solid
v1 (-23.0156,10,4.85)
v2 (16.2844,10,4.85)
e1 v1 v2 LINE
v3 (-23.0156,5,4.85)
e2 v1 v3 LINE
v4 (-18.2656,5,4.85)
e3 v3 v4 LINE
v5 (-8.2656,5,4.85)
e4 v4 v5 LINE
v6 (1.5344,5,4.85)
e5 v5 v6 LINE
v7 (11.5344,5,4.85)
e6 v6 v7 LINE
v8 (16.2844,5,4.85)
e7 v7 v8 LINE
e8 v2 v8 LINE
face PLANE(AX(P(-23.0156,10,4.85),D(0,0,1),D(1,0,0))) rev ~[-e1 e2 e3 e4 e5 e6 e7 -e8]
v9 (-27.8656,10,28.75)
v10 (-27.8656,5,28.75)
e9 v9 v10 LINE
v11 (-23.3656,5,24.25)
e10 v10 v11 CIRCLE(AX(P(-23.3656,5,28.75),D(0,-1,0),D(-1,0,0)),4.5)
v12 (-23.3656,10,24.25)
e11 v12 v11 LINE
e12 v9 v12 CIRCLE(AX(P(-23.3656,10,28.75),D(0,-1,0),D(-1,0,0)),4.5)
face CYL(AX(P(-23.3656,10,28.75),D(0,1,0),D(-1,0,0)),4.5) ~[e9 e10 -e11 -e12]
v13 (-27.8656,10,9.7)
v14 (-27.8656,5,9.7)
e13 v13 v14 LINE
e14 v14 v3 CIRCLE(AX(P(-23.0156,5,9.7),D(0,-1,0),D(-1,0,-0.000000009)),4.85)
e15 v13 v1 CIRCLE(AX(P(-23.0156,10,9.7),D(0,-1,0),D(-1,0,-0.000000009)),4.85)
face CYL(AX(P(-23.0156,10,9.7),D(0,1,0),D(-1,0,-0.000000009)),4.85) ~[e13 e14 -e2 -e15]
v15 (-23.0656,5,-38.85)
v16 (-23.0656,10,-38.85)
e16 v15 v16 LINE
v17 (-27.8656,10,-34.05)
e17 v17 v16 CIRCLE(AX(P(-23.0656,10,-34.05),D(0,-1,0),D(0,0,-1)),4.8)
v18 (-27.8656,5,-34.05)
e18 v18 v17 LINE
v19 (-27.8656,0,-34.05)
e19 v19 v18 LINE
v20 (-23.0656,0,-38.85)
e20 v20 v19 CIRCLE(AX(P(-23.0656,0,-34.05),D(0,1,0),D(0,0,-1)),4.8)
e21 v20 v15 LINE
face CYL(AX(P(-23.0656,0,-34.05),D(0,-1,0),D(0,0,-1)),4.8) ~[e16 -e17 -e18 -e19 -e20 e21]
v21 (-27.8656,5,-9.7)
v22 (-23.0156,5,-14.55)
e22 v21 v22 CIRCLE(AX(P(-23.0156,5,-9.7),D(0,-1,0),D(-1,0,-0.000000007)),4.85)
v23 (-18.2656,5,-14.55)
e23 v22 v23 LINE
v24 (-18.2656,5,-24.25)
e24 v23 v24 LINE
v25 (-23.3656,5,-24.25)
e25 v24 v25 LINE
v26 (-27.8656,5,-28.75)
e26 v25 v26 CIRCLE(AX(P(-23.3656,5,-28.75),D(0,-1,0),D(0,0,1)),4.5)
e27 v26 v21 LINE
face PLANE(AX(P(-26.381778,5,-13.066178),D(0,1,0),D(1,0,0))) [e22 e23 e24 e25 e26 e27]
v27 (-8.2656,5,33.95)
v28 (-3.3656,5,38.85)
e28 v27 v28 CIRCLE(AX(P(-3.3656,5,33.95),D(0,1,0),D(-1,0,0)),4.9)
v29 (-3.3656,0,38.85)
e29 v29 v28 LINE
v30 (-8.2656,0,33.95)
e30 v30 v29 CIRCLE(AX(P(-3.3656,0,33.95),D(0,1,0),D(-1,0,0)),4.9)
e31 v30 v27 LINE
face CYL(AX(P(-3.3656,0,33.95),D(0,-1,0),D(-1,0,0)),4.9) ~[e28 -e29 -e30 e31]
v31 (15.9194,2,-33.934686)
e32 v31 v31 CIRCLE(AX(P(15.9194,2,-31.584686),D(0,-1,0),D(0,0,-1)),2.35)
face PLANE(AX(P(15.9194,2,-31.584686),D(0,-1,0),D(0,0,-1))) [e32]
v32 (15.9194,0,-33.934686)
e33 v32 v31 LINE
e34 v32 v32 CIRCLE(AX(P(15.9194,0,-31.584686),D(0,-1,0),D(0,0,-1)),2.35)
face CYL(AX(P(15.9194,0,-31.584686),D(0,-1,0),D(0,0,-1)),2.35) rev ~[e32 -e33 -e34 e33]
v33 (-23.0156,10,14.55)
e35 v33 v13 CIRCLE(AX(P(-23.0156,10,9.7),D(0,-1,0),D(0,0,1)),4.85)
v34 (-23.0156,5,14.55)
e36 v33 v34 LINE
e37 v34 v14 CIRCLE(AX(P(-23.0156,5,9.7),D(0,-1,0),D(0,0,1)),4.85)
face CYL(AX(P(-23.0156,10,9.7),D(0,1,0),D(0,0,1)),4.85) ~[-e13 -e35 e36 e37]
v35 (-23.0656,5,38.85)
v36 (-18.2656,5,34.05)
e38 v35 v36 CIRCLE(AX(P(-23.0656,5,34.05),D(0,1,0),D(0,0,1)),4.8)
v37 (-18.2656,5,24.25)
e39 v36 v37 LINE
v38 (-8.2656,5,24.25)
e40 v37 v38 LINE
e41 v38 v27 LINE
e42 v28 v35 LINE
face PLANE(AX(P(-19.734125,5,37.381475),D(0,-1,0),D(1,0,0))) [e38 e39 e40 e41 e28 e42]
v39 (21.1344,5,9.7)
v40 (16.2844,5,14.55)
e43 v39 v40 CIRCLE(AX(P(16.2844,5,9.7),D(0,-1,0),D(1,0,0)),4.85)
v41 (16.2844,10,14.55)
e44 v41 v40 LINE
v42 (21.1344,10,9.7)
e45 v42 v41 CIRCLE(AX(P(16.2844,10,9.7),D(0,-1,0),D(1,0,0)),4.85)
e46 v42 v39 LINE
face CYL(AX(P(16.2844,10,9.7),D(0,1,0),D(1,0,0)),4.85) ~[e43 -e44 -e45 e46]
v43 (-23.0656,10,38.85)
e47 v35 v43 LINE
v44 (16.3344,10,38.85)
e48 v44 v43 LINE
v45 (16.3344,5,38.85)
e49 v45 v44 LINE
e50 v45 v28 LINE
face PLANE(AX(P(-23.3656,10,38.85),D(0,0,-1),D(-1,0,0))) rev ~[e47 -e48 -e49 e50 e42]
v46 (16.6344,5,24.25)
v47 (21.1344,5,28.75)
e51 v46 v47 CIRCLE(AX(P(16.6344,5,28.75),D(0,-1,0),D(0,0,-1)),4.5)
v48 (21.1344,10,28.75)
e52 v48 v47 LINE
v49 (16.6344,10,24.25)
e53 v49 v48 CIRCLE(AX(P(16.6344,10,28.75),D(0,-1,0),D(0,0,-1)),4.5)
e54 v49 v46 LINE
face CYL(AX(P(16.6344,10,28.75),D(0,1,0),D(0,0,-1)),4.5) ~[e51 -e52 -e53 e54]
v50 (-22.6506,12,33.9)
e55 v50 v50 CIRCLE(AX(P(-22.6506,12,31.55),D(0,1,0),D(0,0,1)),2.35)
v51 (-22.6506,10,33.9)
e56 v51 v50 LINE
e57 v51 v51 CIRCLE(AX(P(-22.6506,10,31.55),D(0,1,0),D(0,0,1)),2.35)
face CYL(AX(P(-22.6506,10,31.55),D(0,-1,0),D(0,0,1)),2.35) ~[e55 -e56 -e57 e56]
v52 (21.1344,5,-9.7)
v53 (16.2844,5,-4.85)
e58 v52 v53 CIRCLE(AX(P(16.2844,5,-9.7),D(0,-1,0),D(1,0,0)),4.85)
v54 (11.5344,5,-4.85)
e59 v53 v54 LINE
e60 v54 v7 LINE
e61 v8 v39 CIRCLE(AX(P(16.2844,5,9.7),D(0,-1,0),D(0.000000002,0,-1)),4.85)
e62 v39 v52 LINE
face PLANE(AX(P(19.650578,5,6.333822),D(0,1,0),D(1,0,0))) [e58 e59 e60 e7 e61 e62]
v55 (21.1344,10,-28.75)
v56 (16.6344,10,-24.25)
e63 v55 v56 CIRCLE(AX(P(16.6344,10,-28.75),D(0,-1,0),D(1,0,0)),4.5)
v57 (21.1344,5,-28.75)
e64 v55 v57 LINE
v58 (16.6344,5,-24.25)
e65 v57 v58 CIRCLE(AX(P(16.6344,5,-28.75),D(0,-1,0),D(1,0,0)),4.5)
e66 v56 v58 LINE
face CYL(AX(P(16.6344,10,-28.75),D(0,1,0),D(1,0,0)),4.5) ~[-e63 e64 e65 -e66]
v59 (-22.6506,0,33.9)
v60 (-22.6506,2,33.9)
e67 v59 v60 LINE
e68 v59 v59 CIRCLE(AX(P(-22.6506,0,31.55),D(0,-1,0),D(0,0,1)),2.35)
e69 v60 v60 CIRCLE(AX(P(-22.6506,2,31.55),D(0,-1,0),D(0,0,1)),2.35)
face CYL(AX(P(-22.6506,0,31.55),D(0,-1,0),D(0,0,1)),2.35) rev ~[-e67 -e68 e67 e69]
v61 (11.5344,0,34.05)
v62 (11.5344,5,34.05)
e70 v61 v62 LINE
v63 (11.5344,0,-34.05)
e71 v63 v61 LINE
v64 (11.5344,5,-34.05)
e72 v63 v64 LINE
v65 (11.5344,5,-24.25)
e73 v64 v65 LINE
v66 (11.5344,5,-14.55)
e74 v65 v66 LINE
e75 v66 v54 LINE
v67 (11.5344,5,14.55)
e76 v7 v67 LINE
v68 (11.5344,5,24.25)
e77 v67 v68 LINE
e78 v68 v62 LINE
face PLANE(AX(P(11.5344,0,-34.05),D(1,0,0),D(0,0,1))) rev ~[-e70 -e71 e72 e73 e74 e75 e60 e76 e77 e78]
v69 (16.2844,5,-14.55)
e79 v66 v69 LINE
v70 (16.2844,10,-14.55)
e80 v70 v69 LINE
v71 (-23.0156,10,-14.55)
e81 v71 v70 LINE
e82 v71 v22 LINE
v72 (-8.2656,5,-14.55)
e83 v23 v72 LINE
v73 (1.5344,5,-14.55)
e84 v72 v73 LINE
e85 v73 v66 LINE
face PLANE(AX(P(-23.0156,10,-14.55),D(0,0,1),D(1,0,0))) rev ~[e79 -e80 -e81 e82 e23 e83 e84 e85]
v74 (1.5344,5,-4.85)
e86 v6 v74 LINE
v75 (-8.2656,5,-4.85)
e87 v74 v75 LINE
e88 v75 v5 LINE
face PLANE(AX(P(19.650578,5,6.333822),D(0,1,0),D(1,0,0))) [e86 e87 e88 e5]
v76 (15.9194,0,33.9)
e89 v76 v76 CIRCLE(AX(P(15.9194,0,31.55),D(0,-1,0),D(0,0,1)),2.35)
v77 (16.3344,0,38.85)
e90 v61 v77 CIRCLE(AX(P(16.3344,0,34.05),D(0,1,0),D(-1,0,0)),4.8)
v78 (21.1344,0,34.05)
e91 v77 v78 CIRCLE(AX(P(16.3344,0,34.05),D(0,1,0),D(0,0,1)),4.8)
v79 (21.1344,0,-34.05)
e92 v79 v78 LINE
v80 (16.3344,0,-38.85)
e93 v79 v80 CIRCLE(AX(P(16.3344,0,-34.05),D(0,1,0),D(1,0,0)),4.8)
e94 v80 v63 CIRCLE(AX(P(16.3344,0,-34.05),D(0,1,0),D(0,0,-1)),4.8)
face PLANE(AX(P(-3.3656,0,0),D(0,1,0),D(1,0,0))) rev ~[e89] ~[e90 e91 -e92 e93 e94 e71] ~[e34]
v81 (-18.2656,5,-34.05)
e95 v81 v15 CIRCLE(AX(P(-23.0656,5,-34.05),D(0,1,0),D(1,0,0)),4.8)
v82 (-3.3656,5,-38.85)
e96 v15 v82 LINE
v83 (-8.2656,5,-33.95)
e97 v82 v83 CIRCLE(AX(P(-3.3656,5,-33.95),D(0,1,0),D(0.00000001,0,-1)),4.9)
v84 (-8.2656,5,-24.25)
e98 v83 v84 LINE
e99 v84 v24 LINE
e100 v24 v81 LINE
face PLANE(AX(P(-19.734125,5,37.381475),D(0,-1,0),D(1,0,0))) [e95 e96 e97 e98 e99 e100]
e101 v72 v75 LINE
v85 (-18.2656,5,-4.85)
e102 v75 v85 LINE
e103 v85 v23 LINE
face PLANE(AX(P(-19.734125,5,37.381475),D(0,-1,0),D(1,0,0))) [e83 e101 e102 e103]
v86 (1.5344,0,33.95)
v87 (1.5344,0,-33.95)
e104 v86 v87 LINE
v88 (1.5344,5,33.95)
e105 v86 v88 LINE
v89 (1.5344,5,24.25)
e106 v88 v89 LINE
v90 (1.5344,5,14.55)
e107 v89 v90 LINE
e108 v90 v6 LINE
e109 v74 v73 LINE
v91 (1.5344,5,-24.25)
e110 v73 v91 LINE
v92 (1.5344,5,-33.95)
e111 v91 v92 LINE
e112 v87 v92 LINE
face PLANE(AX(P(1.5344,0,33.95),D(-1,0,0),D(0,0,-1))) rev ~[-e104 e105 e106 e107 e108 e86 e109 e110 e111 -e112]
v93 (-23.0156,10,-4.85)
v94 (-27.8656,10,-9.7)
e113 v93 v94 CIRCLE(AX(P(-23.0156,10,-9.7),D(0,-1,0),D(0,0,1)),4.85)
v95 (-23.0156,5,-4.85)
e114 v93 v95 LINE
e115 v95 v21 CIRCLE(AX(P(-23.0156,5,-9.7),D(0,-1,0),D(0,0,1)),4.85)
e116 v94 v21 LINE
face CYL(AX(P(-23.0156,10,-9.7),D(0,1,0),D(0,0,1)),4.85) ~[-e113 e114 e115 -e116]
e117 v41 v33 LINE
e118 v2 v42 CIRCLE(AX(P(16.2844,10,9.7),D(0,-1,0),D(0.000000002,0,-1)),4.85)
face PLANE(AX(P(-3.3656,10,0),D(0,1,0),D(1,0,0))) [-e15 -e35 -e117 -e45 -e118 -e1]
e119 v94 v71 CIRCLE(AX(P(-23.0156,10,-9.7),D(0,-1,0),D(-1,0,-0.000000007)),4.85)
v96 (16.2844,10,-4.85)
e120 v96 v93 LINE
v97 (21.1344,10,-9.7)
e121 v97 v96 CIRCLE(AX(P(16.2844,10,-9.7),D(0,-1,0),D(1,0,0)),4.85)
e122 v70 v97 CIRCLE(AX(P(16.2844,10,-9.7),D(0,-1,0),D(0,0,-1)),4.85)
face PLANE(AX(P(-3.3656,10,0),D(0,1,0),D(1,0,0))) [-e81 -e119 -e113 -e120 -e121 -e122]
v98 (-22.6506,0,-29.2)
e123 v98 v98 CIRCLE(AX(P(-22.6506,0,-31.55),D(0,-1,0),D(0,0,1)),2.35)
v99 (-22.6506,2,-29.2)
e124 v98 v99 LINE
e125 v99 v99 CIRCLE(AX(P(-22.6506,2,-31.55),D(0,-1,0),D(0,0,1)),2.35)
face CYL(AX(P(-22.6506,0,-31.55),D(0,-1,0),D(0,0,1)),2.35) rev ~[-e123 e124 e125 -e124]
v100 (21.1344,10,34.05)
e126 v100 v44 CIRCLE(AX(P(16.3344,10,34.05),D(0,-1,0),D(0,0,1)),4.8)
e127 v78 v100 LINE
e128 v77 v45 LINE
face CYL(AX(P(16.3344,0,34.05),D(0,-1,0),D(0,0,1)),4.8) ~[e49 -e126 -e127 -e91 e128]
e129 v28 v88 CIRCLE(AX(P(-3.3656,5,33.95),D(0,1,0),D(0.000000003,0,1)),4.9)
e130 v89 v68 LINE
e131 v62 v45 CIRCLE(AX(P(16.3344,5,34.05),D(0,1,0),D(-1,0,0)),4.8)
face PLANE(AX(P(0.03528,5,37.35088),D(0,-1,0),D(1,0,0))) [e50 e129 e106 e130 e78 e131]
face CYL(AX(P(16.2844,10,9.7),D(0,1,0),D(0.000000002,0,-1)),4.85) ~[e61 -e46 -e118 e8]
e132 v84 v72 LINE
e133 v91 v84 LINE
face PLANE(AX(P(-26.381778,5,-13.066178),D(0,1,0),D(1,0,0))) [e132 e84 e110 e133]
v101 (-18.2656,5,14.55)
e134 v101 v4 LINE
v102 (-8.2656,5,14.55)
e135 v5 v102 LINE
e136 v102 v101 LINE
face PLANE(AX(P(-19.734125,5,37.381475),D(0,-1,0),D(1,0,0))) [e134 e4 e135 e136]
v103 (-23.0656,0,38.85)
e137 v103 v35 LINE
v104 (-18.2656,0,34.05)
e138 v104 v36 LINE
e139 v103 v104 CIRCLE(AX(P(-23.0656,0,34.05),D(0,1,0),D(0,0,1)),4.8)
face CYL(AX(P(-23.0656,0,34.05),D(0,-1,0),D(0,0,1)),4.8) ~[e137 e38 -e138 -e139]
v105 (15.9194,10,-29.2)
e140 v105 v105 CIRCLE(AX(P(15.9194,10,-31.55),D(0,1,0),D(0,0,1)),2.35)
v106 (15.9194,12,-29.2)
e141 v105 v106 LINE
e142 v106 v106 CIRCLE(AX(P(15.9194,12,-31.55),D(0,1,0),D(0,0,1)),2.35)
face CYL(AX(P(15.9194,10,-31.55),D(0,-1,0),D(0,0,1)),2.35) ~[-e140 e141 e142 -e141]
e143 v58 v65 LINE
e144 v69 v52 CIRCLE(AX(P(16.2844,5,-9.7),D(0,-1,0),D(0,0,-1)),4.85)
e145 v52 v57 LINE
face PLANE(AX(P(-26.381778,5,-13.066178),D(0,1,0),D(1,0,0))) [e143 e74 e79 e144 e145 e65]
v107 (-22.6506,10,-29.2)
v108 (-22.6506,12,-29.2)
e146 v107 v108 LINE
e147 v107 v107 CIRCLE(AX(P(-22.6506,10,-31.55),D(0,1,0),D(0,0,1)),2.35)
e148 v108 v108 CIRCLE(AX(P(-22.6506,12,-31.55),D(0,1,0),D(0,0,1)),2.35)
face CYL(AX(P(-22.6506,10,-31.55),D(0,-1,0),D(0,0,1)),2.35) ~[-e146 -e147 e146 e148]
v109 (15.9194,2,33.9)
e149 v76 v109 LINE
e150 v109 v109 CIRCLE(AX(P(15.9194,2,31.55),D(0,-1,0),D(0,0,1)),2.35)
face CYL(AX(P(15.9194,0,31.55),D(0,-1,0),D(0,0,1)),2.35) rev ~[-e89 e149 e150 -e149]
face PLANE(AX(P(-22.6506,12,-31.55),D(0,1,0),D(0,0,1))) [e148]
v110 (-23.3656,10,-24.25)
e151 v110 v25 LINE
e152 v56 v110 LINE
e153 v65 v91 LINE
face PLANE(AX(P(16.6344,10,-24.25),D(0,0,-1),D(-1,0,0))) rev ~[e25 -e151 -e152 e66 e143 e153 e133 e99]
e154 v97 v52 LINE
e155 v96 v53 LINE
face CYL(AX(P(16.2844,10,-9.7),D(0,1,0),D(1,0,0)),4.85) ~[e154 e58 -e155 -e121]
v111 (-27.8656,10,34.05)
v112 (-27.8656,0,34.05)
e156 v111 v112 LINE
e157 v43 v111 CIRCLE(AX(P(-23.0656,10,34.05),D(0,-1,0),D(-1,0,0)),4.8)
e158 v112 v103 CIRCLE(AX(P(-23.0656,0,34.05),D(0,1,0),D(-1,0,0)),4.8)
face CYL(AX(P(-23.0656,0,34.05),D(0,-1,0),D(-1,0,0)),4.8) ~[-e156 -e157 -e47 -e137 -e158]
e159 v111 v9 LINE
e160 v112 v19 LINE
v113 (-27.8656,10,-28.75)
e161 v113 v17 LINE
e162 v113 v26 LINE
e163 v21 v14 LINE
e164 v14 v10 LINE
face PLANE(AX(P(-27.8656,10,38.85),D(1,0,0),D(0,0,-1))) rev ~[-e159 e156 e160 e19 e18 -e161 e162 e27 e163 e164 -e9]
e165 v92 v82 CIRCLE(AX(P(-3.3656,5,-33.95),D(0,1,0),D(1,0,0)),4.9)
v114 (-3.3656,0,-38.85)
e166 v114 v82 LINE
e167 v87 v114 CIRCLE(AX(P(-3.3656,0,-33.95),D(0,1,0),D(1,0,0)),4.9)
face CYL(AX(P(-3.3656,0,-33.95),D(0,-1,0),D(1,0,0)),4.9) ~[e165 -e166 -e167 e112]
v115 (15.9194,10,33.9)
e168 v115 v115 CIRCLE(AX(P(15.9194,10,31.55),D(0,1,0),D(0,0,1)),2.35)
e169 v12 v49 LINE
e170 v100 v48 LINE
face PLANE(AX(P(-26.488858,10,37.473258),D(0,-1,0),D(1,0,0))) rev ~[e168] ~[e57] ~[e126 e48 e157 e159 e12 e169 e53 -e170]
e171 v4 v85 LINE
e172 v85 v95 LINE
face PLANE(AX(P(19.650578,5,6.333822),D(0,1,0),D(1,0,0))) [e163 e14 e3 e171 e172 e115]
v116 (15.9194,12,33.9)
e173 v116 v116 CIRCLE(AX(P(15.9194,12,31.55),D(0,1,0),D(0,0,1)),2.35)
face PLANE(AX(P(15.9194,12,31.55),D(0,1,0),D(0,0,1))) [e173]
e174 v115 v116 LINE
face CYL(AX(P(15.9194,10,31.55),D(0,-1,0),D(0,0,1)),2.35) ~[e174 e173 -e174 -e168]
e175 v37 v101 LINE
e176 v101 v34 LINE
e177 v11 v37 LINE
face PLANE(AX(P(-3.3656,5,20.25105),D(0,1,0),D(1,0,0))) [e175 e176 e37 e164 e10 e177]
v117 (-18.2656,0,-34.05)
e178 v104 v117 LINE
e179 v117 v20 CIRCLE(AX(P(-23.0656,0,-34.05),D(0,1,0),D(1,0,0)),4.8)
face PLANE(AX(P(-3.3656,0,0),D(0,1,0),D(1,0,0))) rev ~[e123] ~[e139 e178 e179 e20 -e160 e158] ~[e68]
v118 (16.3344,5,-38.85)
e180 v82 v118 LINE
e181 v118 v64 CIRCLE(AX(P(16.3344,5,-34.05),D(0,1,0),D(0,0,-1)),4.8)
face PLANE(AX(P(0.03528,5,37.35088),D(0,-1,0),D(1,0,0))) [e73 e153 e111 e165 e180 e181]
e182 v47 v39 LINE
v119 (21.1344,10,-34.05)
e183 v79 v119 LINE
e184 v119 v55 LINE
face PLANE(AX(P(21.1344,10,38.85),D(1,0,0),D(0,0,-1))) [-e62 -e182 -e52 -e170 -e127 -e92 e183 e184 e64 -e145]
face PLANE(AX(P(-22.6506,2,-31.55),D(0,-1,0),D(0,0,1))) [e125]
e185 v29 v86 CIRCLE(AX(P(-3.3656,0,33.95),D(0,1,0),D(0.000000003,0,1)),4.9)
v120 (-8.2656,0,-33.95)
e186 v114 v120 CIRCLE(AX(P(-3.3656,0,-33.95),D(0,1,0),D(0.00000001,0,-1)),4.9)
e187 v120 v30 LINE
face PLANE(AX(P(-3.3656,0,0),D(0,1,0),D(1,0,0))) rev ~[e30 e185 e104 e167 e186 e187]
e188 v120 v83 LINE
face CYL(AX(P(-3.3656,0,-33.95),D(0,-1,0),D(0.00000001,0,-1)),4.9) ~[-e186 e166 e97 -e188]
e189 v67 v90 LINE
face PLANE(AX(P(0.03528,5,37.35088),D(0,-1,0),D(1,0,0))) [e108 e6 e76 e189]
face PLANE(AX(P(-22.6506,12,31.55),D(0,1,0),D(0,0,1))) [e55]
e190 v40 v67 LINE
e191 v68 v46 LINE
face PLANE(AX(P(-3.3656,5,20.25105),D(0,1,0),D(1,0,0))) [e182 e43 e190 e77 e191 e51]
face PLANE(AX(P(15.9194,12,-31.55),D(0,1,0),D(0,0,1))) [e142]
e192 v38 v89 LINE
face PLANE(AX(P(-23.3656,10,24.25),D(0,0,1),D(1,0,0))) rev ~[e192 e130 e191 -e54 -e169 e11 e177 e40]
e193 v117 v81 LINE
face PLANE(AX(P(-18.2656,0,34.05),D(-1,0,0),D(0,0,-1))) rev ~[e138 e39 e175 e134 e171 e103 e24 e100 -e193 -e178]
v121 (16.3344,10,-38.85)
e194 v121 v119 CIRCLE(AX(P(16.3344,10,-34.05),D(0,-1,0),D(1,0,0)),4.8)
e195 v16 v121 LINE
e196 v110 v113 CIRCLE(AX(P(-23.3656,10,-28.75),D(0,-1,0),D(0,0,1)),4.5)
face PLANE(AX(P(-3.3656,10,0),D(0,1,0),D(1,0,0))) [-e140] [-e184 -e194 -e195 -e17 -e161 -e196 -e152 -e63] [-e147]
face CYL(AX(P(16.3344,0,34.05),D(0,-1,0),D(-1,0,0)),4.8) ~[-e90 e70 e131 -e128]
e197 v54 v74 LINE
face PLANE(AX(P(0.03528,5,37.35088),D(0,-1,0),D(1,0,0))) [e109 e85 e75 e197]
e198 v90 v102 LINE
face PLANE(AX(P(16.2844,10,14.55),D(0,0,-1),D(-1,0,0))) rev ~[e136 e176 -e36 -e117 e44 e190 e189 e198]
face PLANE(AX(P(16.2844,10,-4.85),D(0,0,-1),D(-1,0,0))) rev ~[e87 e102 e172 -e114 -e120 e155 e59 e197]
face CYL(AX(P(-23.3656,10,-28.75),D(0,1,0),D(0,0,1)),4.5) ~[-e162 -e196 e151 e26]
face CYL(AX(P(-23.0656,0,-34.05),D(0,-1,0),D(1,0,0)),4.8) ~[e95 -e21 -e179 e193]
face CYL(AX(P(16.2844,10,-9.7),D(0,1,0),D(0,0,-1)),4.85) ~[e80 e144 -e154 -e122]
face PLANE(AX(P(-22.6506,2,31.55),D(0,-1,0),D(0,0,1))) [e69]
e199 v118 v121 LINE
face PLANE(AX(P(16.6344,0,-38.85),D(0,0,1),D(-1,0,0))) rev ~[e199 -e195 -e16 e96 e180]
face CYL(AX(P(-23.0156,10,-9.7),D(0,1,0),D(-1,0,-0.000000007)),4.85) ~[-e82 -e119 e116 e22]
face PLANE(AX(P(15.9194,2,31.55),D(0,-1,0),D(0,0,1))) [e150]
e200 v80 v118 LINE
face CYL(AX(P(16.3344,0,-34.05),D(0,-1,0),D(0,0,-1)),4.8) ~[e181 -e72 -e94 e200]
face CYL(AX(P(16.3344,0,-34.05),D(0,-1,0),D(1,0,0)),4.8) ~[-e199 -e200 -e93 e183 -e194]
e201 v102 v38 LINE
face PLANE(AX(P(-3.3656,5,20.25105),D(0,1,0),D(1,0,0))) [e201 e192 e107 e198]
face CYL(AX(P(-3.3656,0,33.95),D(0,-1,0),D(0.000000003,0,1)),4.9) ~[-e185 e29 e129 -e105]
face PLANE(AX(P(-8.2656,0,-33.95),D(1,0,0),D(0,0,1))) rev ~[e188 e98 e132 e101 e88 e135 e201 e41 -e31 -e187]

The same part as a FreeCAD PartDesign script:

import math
import FreeCAD as App
import Part
import Sketcher
from FreeCAD import Vector
Q = App.Units.Quantity


def add_polygon(sketch, points):
    """Adds a closed chain of lines whose ends are joined by coincident constraints."""
    first, n = sketch.GeometryCount, len(points)
    for a, b in zip(points, points[1:] + points[:1]):
        sketch.addGeometry(Part.LineSegment(App.Vector(*a, 0), App.Vector(*b, 0)), False)
    for i in range(n):
        sketch.addConstraint(Sketcher.Constraint("Coincident", first + i, 2, first + (i + 1) % n, 1))

doc = App.newDocument("Part")
body = doc.addObject("PartDesign::Body", "Body")

# Sketch on XZ plane
sketch1 = doc.addObject("Sketcher::SketchObject", "Sketch")
body.addObject(sketch1)
sketch1.AttachmentSupport = (doc.XZ_Plane, [""])
sketch1.MapMode = "FlatFace"
sketch1.addGeometry([
    Part.LineSegment(Vector(-23.4, 38.9, 0), Vector(16.6, 38.9, 0)),  # 0
    Part.ArcOfCircle(Part.Circle(Vector(16.6, 34.3, 0), Vector(0, 0, 1), 4.5), math.radians(0), math.radians(90)),  # 1
    Part.LineSegment(Vector(21.1, 34.4, 0), Vector(21.1, -34.4, 0)),  # 2
    Part.ArcOfCircle(Part.Circle(Vector(16.6, -34.3, 0), Vector(0, 0, 1), 4.5), math.radians(-90), math.radians(0)),  # 3
    Part.LineSegment(Vector(16.6, -38.9, 0), Vector(-23.4, -38.9, 0)),  # 4
    Part.ArcOfCircle(Part.Circle(Vector(-23.4, -34.3, 0), Vector(0, 0, 1), 4.5), math.radians(-180), math.radians(-90)),  # 5
    Part.LineSegment(Vector(-27.9, -34.4, 0), Vector(-27.9, 34.4, 0)),  # 6
    Part.ArcOfCircle(Part.Circle(Vector(-23.4, 34.3, 0), Vector(0, 0, 1), 4.5), math.radians(90), math.radians(180)),  # 7
], False)
sketch1.addConstraint([
    Sketcher.Constraint("Tangent", 0, 2, 1, 2),
    Sketcher.Constraint("Tangent", 1, 1, 2, 1),
    Sketcher.Constraint("Tangent", 2, 2, 3, 2),
    Sketcher.Constraint("Tangent", 3, 1, 4, 1),
    Sketcher.Constraint("Tangent", 4, 2, 5, 2),
    Sketcher.Constraint("Tangent", 5, 1, 6, 1),
    Sketcher.Constraint("Tangent", 6, 2, 7, 2),
    Sketcher.Constraint("Tangent", 7, 1, 0, 1),
    Sketcher.Constraint("Horizontal", 0),
    Sketcher.Constraint("Vertical", 2),
    Sketcher.Constraint("Horizontal", 4),
    Sketcher.Constraint("Vertical", 6),
    Sketcher.Constraint("Equal", 1, 3),
    Sketcher.Constraint("Equal", 3, 5),
    Sketcher.Constraint("Equal", 5, 7),
    Sketcher.Constraint("Radius", 1, Q("4.5 mm")),
    Sketcher.Constraint("DistanceX", 0, 1, 0, 2, Q("40 mm")),
    Sketcher.Constraint("DistanceY", 2, 2, 2, 1, Q("68.7 mm")),
    Sketcher.Constraint("DistanceY", -1, 1, 1, 3, Q("34.35 mm")),
    Sketcher.Constraint("DistanceX", -1, 1, 1, 3, Q("16.6344 mm")),
])
pad1 = doc.addObject("PartDesign::Pad", "Pad")
body.addObject(pad1)
pad1.Profile = sketch1
pad1.Length = 10
pad1.Reversed = True

# Sketch on XZ plane
sketch2 = doc.addObject("Sketcher::SketchObject", "Sketch001")
body.addObject(sketch2)
sketch2.AttachmentSupport = (doc.XZ_Plane, [""])
sketch2.MapMode = "FlatFace"
sketch2.AttachmentOffset = App.Placement(Vector(0, 0, -10), App.Rotation())
sketch2.addGeometry([
    Part.ArcOfCircle(Part.Circle(Vector(-23.4, 28.8, 0), Vector(0, 0, 1), 4.5), math.radians(-180), math.radians(-90)),  # 0
    Part.LineSegment(Vector(-23.4, 24.2, 0), Vector(16.6, 24.2, 0)),  # 1
    Part.ArcOfCircle(Part.Circle(Vector(16.6, 28.8, 0), Vector(0, 0, 1), 4.5), math.radians(-90), math.radians(0)),  # 2
    Part.LineSegment(Vector(21.1, 28.8, 0), Vector(21.1, 9.7, 0)),  # 3
    Part.ArcOfCircle(Part.Circle(Vector(16.3, 9.7, 0), Vector(0, 0, 1), 4.8), math.radians(0), math.radians(90)),  # 4
    Part.LineSegment(Vector(16.3, 14.6, 0), Vector(-23, 14.6, 0)),  # 5
    Part.ArcOfCircle(Part.Circle(Vector(-23, 9.7, 0), Vector(0, 0, 1), 4.9), math.radians(90), math.radians(180)),  # 6
    Part.LineSegment(Vector(-27.9, 9.7, 0), Vector(-27.9, 28.8, 0)),  # 7
    Part.LineSegment(Vector(21.1, 9.7, 0), Vector(21.1, -9.7, 0)),  # 8
    Part.ArcOfCircle(Part.Circle(Vector(16.3, -9.7, 0), Vector(0, 0, 1), 4.8), math.radians(0), math.radians(90)),  # 9
    Part.LineSegment(Vector(16.3, -4.8, 0), Vector(-23, -4.8, 0)),  # 10
    Part.ArcOfCircle(Part.Circle(Vector(-23, -9.7, 0), Vector(0, 0, 1), 4.8), math.radians(90), math.radians(180)),  # 11
    Part.LineSegment(Vector(-27.9, -9.7, 0), Vector(-27.9, 9.7, 0)),  # 12
    Part.ArcOfCircle(Part.Circle(Vector(-23, 9.7, 0), Vector(0, 0, 1), 4.9), math.radians(-180), math.radians(-90)),  # 13
    Part.LineSegment(Vector(-23, 4.8, 0), Vector(16.3, 4.8, 0)),  # 14
    Part.ArcOfCircle(Part.Circle(Vector(16.3, 9.7, 0), Vector(0, 0, 1), 4.9), math.radians(-90), math.radians(0)),  # 15
    Part.ArcOfCircle(Part.Circle(Vector(-23, -9.7, 0), Vector(0, 0, 1), 4.8), math.radians(-180), math.radians(-90)),  # 16
    Part.LineSegment(Vector(-23, -14.6, 0), Vector(16.3, -14.6, 0)),  # 17
    Part.ArcOfCircle(Part.Circle(Vector(16.3, -9.7, 0), Vector(0, 0, 1), 4.8), math.radians(-90), math.radians(0)),  # 18
    Part.LineSegment(Vector(21.1, -9.7, 0), Vector(21.1, -28.8, 0)),  # 19
    Part.ArcOfCircle(Part.Circle(Vector(16.6, -28.8, 0), Vector(0, 0, 1), 4.5), math.radians(0), math.radians(90)),  # 20
    Part.LineSegment(Vector(16.6, -24.2, 0), Vector(-23.4, -24.2, 0)),  # 21
    Part.ArcOfCircle(Part.Circle(Vector(-23.4, -28.8, 0), Vector(0, 0, 1), 4.5), math.radians(90), math.radians(180)),  # 22
    Part.LineSegment(Vector(-27.9, -28.8, 0), Vector(-27.9, -9.7, 0)),  # 23
], False)
sketch2.addConstraint([
    Sketcher.Constraint("Tangent", 0, 2, 1, 1),
    Sketcher.Constraint("Tangent", 1, 2, 2, 1),
    Sketcher.Constraint("Tangent", 2, 2, 3, 1),
    Sketcher.Constraint("Tangent", 3, 2, 4, 1),
    Sketcher.Constraint("Tangent", 4, 2, 5, 1),
    Sketcher.Constraint("Tangent", 5, 2, 6, 1),
    Sketcher.Constraint("Tangent", 6, 2, 7, 1),
    Sketcher.Constraint("Tangent", 7, 2, 0, 1),
    Sketcher.Constraint("Tangent", 8, 2, 9, 1),
    Sketcher.Constraint("Tangent", 9, 2, 10, 1),
    Sketcher.Constraint("Tangent", 10, 2, 11, 1),
    Sketcher.Constraint("Tangent", 11, 2, 12, 1),
    Sketcher.Constraint("Tangent", 12, 2, 13, 1),
    Sketcher.Constraint("Tangent", 13, 2, 14, 1),
    Sketcher.Constraint("Tangent", 14, 2, 15, 1),
    Sketcher.Constraint("Tangent", 15, 2, 8, 1),
    Sketcher.Constraint("Tangent", 16, 2, 17, 1),
    Sketcher.Constraint("Tangent", 17, 2, 18, 1),
    Sketcher.Constraint("Tangent", 18, 2, 19, 1),
    Sketcher.Constraint("Tangent", 19, 2, 20, 1),
    Sketcher.Constraint("Tangent", 20, 2, 21, 1),
    Sketcher.Constraint("Tangent", 21, 2, 22, 1),
    Sketcher.Constraint("Tangent", 22, 2, 23, 1),
    Sketcher.Constraint("Tangent", 23, 2, 16, 1),
    Sketcher.Constraint("Horizontal", 1),
    Sketcher.Constraint("Vertical", 3),
    Sketcher.Constraint("Horizontal", 5),
    Sketcher.Constraint("Vertical", 7),
    Sketcher.Constraint("Vertical", 8),
    Sketcher.Constraint("Horizontal", 10),
    Sketcher.Constraint("Vertical", 12),
    Sketcher.Constraint("Horizontal", 14),
    Sketcher.Constraint("Horizontal", 17),
    Sketcher.Constraint("Vertical", 19),
    Sketcher.Constraint("Horizontal", 21),
    Sketcher.Constraint("Vertical", 23),
    Sketcher.Constraint("Coincident", 13, 3, 6, 3),
    Sketcher.Constraint("Coincident", 15, 3, 4, 3),
    Sketcher.Constraint("Coincident", 16, 3, 11, 3),
    Sketcher.Constraint("Coincident", 18, 3, 9, 3),
    Sketcher.Constraint("Equal", 0, 2),
    Sketcher.Constraint("Equal", 4, 6),
    Sketcher.Constraint("Equal", 6, 9),
    Sketcher.Constraint("Equal", 9, 11),
    Sketcher.Constraint("Equal", 11, 13),
    Sketcher.Constraint("Equal", 15, 16),
    Sketcher.Constraint("Equal", 2, 20),
    Sketcher.Constraint("Equal", 20, 22),
    Sketcher.Constraint("Equal", 7, 19),
    Sketcher.Constraint("Radius", 0, Q("4.5 mm")),
    Sketcher.Constraint("DistanceX", 1, 1, 1, 2, Q("40 mm")),
    Sketcher.Constraint("Radius", 4, Q("4.85 mm")),
    Sketcher.Constraint("DistanceY", 8, 2, 8, 1, Q("19.4 mm")),
    Sketcher.Constraint("DistanceY", 3, 2, 3, 1, Q("19.05 mm")),
    Sketcher.Constraint("DistanceY", -1, 1, 4, 3, Q("9.7 mm")),
    Sketcher.Constraint("DistanceX", 0, 3, -1, 1, Q("23.3656 mm")),
])
pocket1 = doc.addObject("PartDesign::Pocket", "Pocket")
body.addObject(pocket1)
pocket1.Profile = sketch2
pocket1.Length = 5
pocket1.Reversed = True

# Sketch on XZ plane
sketch3 = doc.addObject("Sketcher::SketchObject", "Sketch002")
body.addObject(sketch3)
sketch3.AttachmentSupport = (doc.XZ_Plane, [""])
sketch3.MapMode = "FlatFace"
add_polygon(sketch3, [(-23.4, 38.9), (-27.9, 38.9), (-27.9, 34.2), (-23.4, 35.6)])  # lines 0-3
add_polygon(sketch3, [(16.6, 38.9), (17.4, 36.8), (21.1, 34.4), (21.1, 38.9)])  # lines 4-7
add_polygon(sketch3, [(21.1, -34.4), (16.6, -34.7), (16.6, -38.9), (21.1, -38.9)])  # lines 8-11
add_polygon(sketch3, [(-23.4, -38.9), (-23.2, -35.6), (-27.9, -34.4), (-27.9, -38.9)])  # lines 12-15
sketch3.addConstraint([
    Sketcher.Constraint("Horizontal", 0),
    Sketcher.Constraint("Vertical", 1),
    Sketcher.Constraint("Vertical", 3),
    Sketcher.Constraint("Vertical", 6),
    Sketcher.Constraint("Horizontal", 7),
    Sketcher.Constraint("Vertical", 9),
    Sketcher.Constraint("Horizontal", 10),
    Sketcher.Constraint("Vertical", 11),
    Sketcher.Constraint("Vertical", 14),
    Sketcher.Constraint("Horizontal", 15),
    Sketcher.Constraint("Symmetric", 7, 2, 9, 2, -1),
    Sketcher.Constraint("Symmetric", 5, 2, 11, 2, -1),
    Sketcher.Constraint("Symmetric", 0, 2, 14, 2, -1),
    Sketcher.Constraint("Horizontal", 3, 2, 6, 2),
    Sketcher.Constraint("Horizontal", 11, 2, 13, 2),
    Sketcher.Constraint("Vertical", 3, 2, 15, 2),
    Sketcher.Constraint("Equal", 0, 7),
    Sketcher.Constraint("Equal", 15, 6),
    Sketcher.Constraint("DistanceX", 0, 2, 0, 1, Q("4.5 mm")),
    Sketcher.Constraint("DistanceX", 1, 2, 5, 2, Q("49 mm")),
    Sketcher.Constraint("DistanceY", 9, 2, 5, 2, Q("73.2 mm")),
    Sketcher.Constraint("DistanceY", 1, 2, 2, 2, Q("1.439 mm")),
    Sketcher.Constraint("DistanceY", 1, 2, 1, 1, Q("4.673389 mm")),
    Sketcher.Constraint("DistanceY", 9, 2, 9, 1, Q("4.104989 mm")),
    Sketcher.Constraint("DistanceX", 0, 2, -1, 1, Q("27.8656 mm")),
    Sketcher.Constraint("Distance", 4, Q("2.154379 mm")),
    Sketcher.Constraint("Distance", 13, Q("4.868361 mm")),
    Sketcher.Constraint("DistanceX", -1, 1, 4, 2, Q("17.428759 mm")),
    Sketcher.Constraint("Distance", 12, Q("3.270893 mm")),
])
pad2 = doc.addObject("PartDesign::Pad", "Pad001")
body.addObject(pad2)
pad2.Profile = sketch3
pad2.Type = "TwoLengths"
pad2.Length = 5
pad2.Length2 = 10

# Sketch on YZ plane
sketch4 = doc.addObject("Sketcher::SketchObject", "Sketch003")
body.addObject(sketch4)
sketch4.AttachmentSupport = (doc.YZ_Plane, [""])
sketch4.MapMode = "FlatFace"
sketch4.AttachmentOffset = App.Placement(Vector(0, 0, 21.1344), App.Rotation())
add_polygon(sketch4, [(-11, 39), (-11, -42), (0, -42), (0, 39)])  # lines 0-3
sketch4.addConstraint([
    Sketcher.Constraint("Vertical", 0),
    Sketcher.Constraint("Horizontal", 1),
    Sketcher.Constraint("Vertical", 2),
    Sketcher.Constraint("Horizontal", 3),
    Sketcher.Constraint("PointOnObject", 1, 2, -2),
    Sketcher.Constraint("DistanceY", -1, 1, 2, 2, Q("38.85 mm")),
    Sketcher.Constraint("DistanceY", 0, 2, 0, 1, Q("80.434838 mm")),
    Sketcher.Constraint("DistanceX", 1, 1, 1, 2, Q("11.467862 mm")),
])
pocket2 = doc.addObject("PartDesign::Pocket", "Pocket001")
body.addObject(pocket2)
pocket2.Profile = sketch4
pocket2.Length = 60

# Sketch on XZ plane
sketch5 = doc.addObject("Sketcher::SketchObject", "Sketch004")
body.addObject(sketch5)
sketch5.AttachmentSupport = (doc.XZ_Plane, [""])
sketch5.MapMode = "FlatFace"
sketch5.addGeometry([
    Part.ArcOfCircle(Part.Circle(Vector(-23.1, 34.1, 0), Vector(0, 0, 1), 4.8), math.radians(90), math.radians(180)),  # 0
    Part.LineSegment(Vector(-23.1, 38.9, 0), Vector(-27.9, 38.9, 0)),  # 1
    Part.LineSegment(Vector(-27.9, 38.9, 0), Vector(-27.9, 34, 0)),  # 2
    Part.ArcOfCircle(Part.Circle(Vector(-23.1, 34.1, 0), Vector(0, 0, 1), 4.8), math.radians(0), math.radians(90)),  # 3
    Part.LineSegment(Vector(-18.3, 34, 0), Vector(-18.3, -34, 0)),  # 4
    Part.ArcOfCircle(Part.Circle(Vector(-23.1, -34.1, 0), Vector(0, 0, 1), 4.8), math.radians(-90), math.radians(0)),  # 5
    Part.LineSegment(Vector(-23.1, -38.9, 0), Vector(-3.4, -38.9, 0)),  # 6
    Part.ArcOfCircle(Part.Circle(Vector(-3.4, -33.9, 0), Vector(0, 0, 1), 4.9), math.radians(-180), math.radians(-90)),  # 7
    Part.LineSegment(Vector(-8.3, -34, 0), Vector(-8.3, 34, 0)),  # 8
    Part.ArcOfCircle(Part.Circle(Vector(-3.4, 33.9, 0), Vector(0, 0, 1), 4.9), math.radians(90), math.radians(180)),  # 9
    Part.LineSegment(Vector(-3.4, 38.9, 0), Vector(-23.1, 38.9, 0)),  # 10
    Part.ArcOfCircle(Part.Circle(Vector(-3.4, 33.9, 0), Vector(0, 0, 1), 4.9), math.radians(0), math.radians(90)),  # 11
    Part.LineSegment(Vector(1.5, 34, 0), Vector(1.5, -34, 0)),  # 12
    Part.ArcOfCircle(Part.Circle(Vector(-3.4, -34, 0), Vector(0, 0, 1), 4.9), math.radians(-90), math.radians(0)),  # 13
    Part.LineSegment(Vector(-3.4, -38.9, 0), Vector(16.3, -38.9, 0)),  # 14
    Part.ArcOfCircle(Part.Circle(Vector(16.3, -34, 0), Vector(0, 0, 1), 4.8), math.radians(-180), math.radians(-90)),  # 15
    Part.LineSegment(Vector(11.5, -34.1, 0), Vector(11.5, 34, 0)),  # 16
    Part.ArcOfCircle(Part.Circle(Vector(16.3, 34.1, 0), Vector(0, 0, 1), 4.8), math.radians(90), math.radians(180)),  # 17
    Part.LineSegment(Vector(16.3, 38.9, 0), Vector(-3.4, 38.9, 0)),  # 18
    Part.LineSegment(Vector(21.1, 38.9, 0), Vector(16.3, 38.9, 0)),  # 19
    Part.ArcOfCircle(Part.Circle(Vector(16.3, 34.1, 0), Vector(0, 0, 1), 4.8), math.radians(0), math.radians(90)),  # 20
    Part.LineSegment(Vector(21.1, 34, 0), Vector(21.1, 38.9, 0)),  # 21
    Part.ArcOfCircle(Part.Circle(Vector(16.3, -34.1, 0), Vector(0, 0, 1), 4.8), math.radians(-90), math.radians(0)),  # 22
    Part.LineSegment(Vector(16.3, -38.9, 0), Vector(21.1, -38.9, 0)),  # 23
    Part.LineSegment(Vector(21.1, -38.9, 0), Vector(21.1, -34, 0)),  # 24
    Part.ArcOfCircle(Part.Circle(Vector(-23.1, -34, 0), Vector(0, 0, 1), 4.8), math.radians(180), math.radians(270)),  # 25
    Part.LineSegment(Vector(-27.9, -34, 0), Vector(-27.9, -38.9, 0)),  # 26
    Part.LineSegment(Vector(-27.9, -38.9, 0), Vector(-23.1, -38.9, 0)),  # 27
], False)
sketch5.addConstraint([
    Sketcher.Constraint("Tangent", 0, 1, 1, 1),
    Sketcher.Constraint("Coincident", 1, 2, 2, 1),
    Sketcher.Constraint("Tangent", 2, 2, 0, 2),
    Sketcher.Constraint("Tangent", 3, 1, 4, 1),
    Sketcher.Constraint("Tangent", 4, 2, 5, 2),
    Sketcher.Constraint("Tangent", 5, 1, 6, 1),
    Sketcher.Constraint("Tangent", 6, 2, 7, 2),
    Sketcher.Constraint("Tangent", 7, 1, 8, 1),
    Sketcher.Constraint("Tangent", 8, 2, 9, 2),
    Sketcher.Constraint("Tangent", 9, 1, 10, 1),
    Sketcher.Constraint("Tangent", 10, 2, 3, 2),
    Sketcher.Constraint("Tangent", 11, 1, 12, 1),
    Sketcher.Constraint("Tangent", 12, 2, 13, 2),
    Sketcher.Constraint("Tangent", 13, 1, 14, 1),
    Sketcher.Constraint("Tangent", 14, 2, 15, 2),
    Sketcher.Constraint("Tangent", 15, 1, 16, 1),
    Sketcher.Constraint("Tangent", 16, 2, 17, 2),
    Sketcher.Constraint("Tangent", 17, 1, 18, 1),
    Sketcher.Constraint("Tangent", 18, 2, 11, 2),
    Sketcher.Constraint("Tangent", 19, 2, 20, 2),
    Sketcher.Constraint("Tangent", 20, 1, 21, 1),
    Sketcher.Constraint("Coincident", 21, 2, 19, 1),
    Sketcher.Constraint("Tangent", 22, 1, 23, 1),
    Sketcher.Constraint("Coincident", 23, 2, 24, 1),
    Sketcher.Constraint("Tangent", 24, 2, 22, 2),
    Sketcher.Constraint("Tangent", 25, 1, 26, 1),
    Sketcher.Constraint("Coincident", 26, 2, 27, 1),
    Sketcher.Constraint("Tangent", 27, 2, 25, 2),
    Sketcher.Constraint("Horizontal", 1),
    Sketcher.Constraint("Vertical", 2),
    Sketcher.Constraint("Vertical", 4),
    Sketcher.Constraint("Horizontal", 6),
    Sketcher.Constraint("Vertical", 8),
    Sketcher.Constraint("Horizontal", 10),
    Sketcher.Constraint("Vertical", 12),
    Sketcher.Constraint("Horizontal", 14),
    Sketcher.Constraint("Vertical", 16),
    Sketcher.Constraint("Horizontal", 18),
    Sketcher.Constraint("Horizontal", 19),
    Sketcher.Constraint("Vertical", 21),
    Sketcher.Constraint("Horizontal", 23),
    Sketcher.Constraint("Vertical", 24),
    Sketcher.Constraint("Vertical", 26),
    Sketcher.Constraint("Horizontal", 27),
    Sketcher.Constraint("Coincident", 3, 3, 0, 3),
    Sketcher.Constraint("Coincident", 11, 3, 9, 3),
    Sketcher.Constraint("Coincident", 13, 3, 7, 3),
    Sketcher.Constraint("Coincident", 20, 3, 17, 3),
    Sketcher.Constraint("Coincident", 22, 3, 15, 3),
    Sketcher.Constraint("Coincident", 25, 3, 5, 3),
    Sketcher.Constraint("Equal", 0, 3),
    Sketcher.Constraint("Equal", 3, 5),
    Sketcher.Constraint("Equal", 7, 9),
    Sketcher.Constraint("Equal", 9, 11),
    Sketcher.Constraint("Equal", 5, 15),
    Sketcher.Constraint("Equal", 15, 17),
    Sketcher.Constraint("Equal", 17, 20),
    Sketcher.Constraint("Equal", 20, 22),
    Sketcher.Constraint("Equal", 22, 25),
    Sketcher.Constraint("Equal", 10, 14),
    Sketcher.Constraint("Radius", 0, Q("4.8 mm")),
    Sketcher.Constraint("Radius", 7, Q("4.9 mm")),
    Sketcher.Constraint("DistanceX", 6, 1, 6, 2, Q("19.7 mm")),
    Sketcher.Constraint("DistanceY", 4, 2, 4, 1, Q("68.1 mm")),
    Sketcher.Constraint("DistanceY", -1, 1, 0, 3, Q("34.05 mm")),
    Sketcher.Constraint("DistanceX", 0, 3, -1, 1, Q("23.0656 mm")),
])
pocket3 = doc.addObject("PartDesign::Pocket", "Pocket002")
body.addObject(pocket3)
pocket3.Profile = sketch5
pocket3.Length = 5

# Sketch on XZ plane
sketch6 = doc.addObject("Sketcher::SketchObject", "Sketch005")
body.addObject(sketch6)
sketch6.AttachmentSupport = (doc.XZ_Plane, [""])
sketch6.MapMode = "FlatFace"
sketch6.addGeometry([
    Part.LineSegment(Vector(-27.9, 38.9, 0), Vector(-27.9, 34, 0)),  # 0
    Part.ArcOfCircle(Part.Circle(Vector(-23.1, 34.1, 0), Vector(0, 0, 1), 4.8), math.radians(90), math.radians(180)),  # 1
    Part.LineSegment(Vector(-23.1, 38.9, 0), Vector(-27.9, 38.9, 0)),  # 2
    Part.LineSegment(Vector(21.1, 34, 0), Vector(21.1, 38.9, 0)),  # 3
    Part.LineSegment(Vector(21.1, 38.9, 0), Vector(16.3, 38.9, 0)),  # 4
    Part.ArcOfCircle(Part.Circle(Vector(16.3, 34.1, 0), Vector(0, 0, 1), 4.8), math.radians(0), math.radians(90)),  # 5
    Part.LineSegment(Vector(16.3, -38.9, 0), Vector(21.1, -38.9, 0)),  # 6
    Part.LineSegment(Vector(21.1, -38.9, 0), Vector(21.1, -34, 0)),  # 7
    Part.ArcOfCircle(Part.Circle(Vector(16.3, -34.1, 0), Vector(0, 0, 1), 4.8), math.radians(-90), math.radians(0)),  # 8
    Part.LineSegment(Vector(-27.9, -34, 0), Vector(-27.9, -38.9, 0)),  # 9
    Part.LineSegment(Vector(-27.9, -38.9, 0), Vector(-23.1, -38.9, 0)),  # 10
    Part.ArcOfCircle(Part.Circle(Vector(-23.1, -34.1, 0), Vector(0, 0, 1), 4.8), math.radians(180), math.radians(270)),  # 11
], False)
sketch6.addConstraint([
    Sketcher.Constraint("Tangent", 0, 2, 1, 2),
    Sketcher.Constraint("Tangent", 1, 1, 2, 1),
    Sketcher.Constraint("Coincident", 2, 2, 0, 1),
    Sketcher.Constraint("Coincident", 3, 2, 4, 1),
    Sketcher.Constraint("Tangent", 4, 2, 5, 2),
    Sketcher.Constraint("Tangent", 5, 1, 3, 1),
    Sketcher.Constraint("Coincident", 6, 2, 7, 1),
    Sketcher.Constraint("Tangent", 7, 2, 8, 2),
    Sketcher.Constraint("Tangent", 8, 1, 6, 1),
    Sketcher.Constraint("Coincident", 9, 2, 10, 1),
    Sketcher.Constraint("Tangent", 10, 2, 11, 2),
    Sketcher.Constraint("Tangent", 11, 1, 9, 1),
    Sketcher.Constraint("Vertical", 0),
    Sketcher.Constraint("Horizontal", 2),
    Sketcher.Constraint("Vertical", 3),
    Sketcher.Constraint("Horizontal", 4),
    Sketcher.Constraint("Horizontal", 6),
    Sketcher.Constraint("Vertical", 7),
    Sketcher.Constraint("Vertical", 9),
    Sketcher.Constraint("Horizontal", 10),
    Sketcher.Constraint("Equal", 1, 5),
    Sketcher.Constraint("Equal", 5, 8),
    Sketcher.Constraint("Equal", 8, 11),
    Sketcher.Constraint("Symmetric", 5, 3, 8, 3, -1),
    Sketcher.Constraint("Symmetric", 1, 3, 11, 3, -1),
    Sketcher.Constraint("Horizontal", 1, 3, 5, 3),
    Sketcher.Constraint("Radius", 1, Q("4.8 mm")),
    Sketcher.Constraint("DistanceX", 2, 2, 3, 2, Q("49 mm")),
    Sketcher.Constraint("DistanceY", 8, 3, 5, 3, Q("68.1 mm")),
    Sketcher.Constraint("DistanceX", 1, 3, -1, 1, Q("23.0656 mm")),
])
pocket4 = doc.addObject("PartDesign::Pocket", "Pocket003")
body.addObject(pocket4)
pocket4.Profile = sketch6
pocket4.Length = 14

# Sketch on XZ plane
sketch7 = doc.addObject("Sketcher::SketchObject", "Sketch006")
body.addObject(sketch7)
sketch7.AttachmentSupport = (doc.XZ_Plane, [""])
sketch7.MapMode = "FlatFace"
sketch7.AttachmentOffset = App.Placement(Vector(0, 0, -10), App.Rotation())
sketch7.addGeometry([
    Part.Circle(Vector(-22.7, -31.6, 0), Vector(0, 0, 1), 2.4),
    Part.Circle(Vector(15.9, -31.6, 0), Vector(0, 0, 1), 2.4),
    Part.Circle(Vector(-22.7, 31.6, 0), Vector(0, 0, 1), 2.4),
    Part.Circle(Vector(15.9, 31.6, 0), Vector(0, 0, 1), 2.4),
], False)
sketch7.addConstraint([
    Sketcher.Constraint("Equal", 0, 1),
    Sketcher.Constraint("Equal", 1, 2),
    Sketcher.Constraint("Equal", 2, 3),
    Sketcher.Constraint("Symmetric", 0, 3, 2, 3, -1),
    Sketcher.Constraint("Symmetric", 1, 3, 3, 3, -1),
    Sketcher.Constraint("Horizontal", 0, 3, 1, 3),
    Sketcher.Constraint("Diameter", 0, Q("4.7 mm")),
    Sketcher.Constraint("DistanceY", 0, 3, 2, 3, Q("63.1 mm")),
    Sketcher.Constraint("DistanceX", 0, 3, 1, 3, Q("38.57 mm")),
    Sketcher.Constraint("DistanceX", 0, 3, -1, 1, Q("22.6506 mm")),
])
pad3 = doc.addObject("PartDesign::Pad", "Pad002")
body.addObject(pad3)
pad3.Profile = sketch7
pad3.Length = 2
pad3.Reversed = True

# Sketch on XZ plane
sketch8 = doc.addObject("Sketcher::SketchObject", "Sketch007")
body.addObject(sketch8)
sketch8.AttachmentSupport = (doc.XZ_Plane, [""])
sketch8.MapMode = "FlatFace"
sketch8.addGeometry([
    Part.Circle(Vector(15.9, 31.6, 0), Vector(0, 0, 1), 2.4),
    Part.Circle(Vector(-22.7, -31.6, 0), Vector(0, 0, 1), 2.4),
    Part.Circle(Vector(-22.7, 31.6, 0), Vector(0, 0, 1), 2.4),
    Part.Circle(Vector(15.9, -31.6, 0), Vector(0, 0, 1), 2.4),
], False)
sketch8.addConstraint([
    Sketcher.Constraint("Equal", 0, 1),
    Sketcher.Constraint("Equal", 1, 2),
    Sketcher.Constraint("Equal", 2, 3),
    Sketcher.Constraint("Symmetric", 1, 3, 2, 3, -1),
    Sketcher.Constraint("Horizontal", 0, 3, 2, 3),
    Sketcher.Constraint("Vertical", 0, 3, 3, 3),
    Sketcher.Constraint("Diameter", 0, Q("4.7 mm")),
    Sketcher.Constraint("DistanceY", 1, 3, 0, 3, Q("63.1 mm")),
    Sketcher.Constraint("DistanceX", 1, 3, 0, 3, Q("38.57 mm")),
    Sketcher.Constraint("DistanceX", -1, 1, 0, 3, Q("15.9194 mm")),
    Sketcher.Constraint("DistanceY", 3, 3, -1, 1, Q("31.584686 mm")),
])
pocket5 = doc.addObject("PartDesign::Pocket", "Pocket004")
body.addObject(pocket5)
pocket5.Profile = sketch8
pocket5.Length = 2

doc.recompute()
